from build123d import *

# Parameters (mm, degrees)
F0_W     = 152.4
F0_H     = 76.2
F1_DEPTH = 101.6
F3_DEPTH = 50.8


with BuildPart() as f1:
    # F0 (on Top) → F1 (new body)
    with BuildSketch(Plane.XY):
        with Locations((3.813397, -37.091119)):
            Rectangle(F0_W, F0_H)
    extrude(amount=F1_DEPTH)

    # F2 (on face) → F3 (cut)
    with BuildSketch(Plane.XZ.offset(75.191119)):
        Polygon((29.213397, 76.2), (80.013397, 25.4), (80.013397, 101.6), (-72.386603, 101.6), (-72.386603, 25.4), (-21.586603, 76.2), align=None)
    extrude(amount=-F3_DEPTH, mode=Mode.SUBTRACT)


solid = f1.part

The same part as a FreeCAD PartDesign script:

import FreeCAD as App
import Part
import Sketcher

V = App.Vector
Q = App.Units.Quantity

doc = App.newDocument("Part")
body = doc.addObject("PartDesign::Body", "Body")

sketch1 = body.newObject("Sketcher::SketchObject", "Sketch")
sketch1.AttachmentSupport = (doc.getObject("XY_Plane"), [""])
sketch1.MapMode = "FlatFace"
sketch1.addGeometry([
    Part.LineSegment(V(-72, 1, 0), V(-72, -75, 0)),
    Part.LineSegment(V(-72, -75, 0), V(80, -75, 0)),
    Part.LineSegment(V(80, -75, 0), V(80, 1, 0)),
    Part.LineSegment(V(80, 1, 0), V(-72, 1, 0)),
], False)
sketch1.addConstraint([
    Sketcher.Constraint("Coincident", 0, 2, 1, 1),
    Sketcher.Constraint("Coincident", 1, 2, 2, 1),
    Sketcher.Constraint("Coincident", 2, 2, 3, 1),
    Sketcher.Constraint("Coincident", 3, 2, 0, 1),
    Sketcher.Constraint("Vertical", 0),
    Sketcher.Constraint("Horizontal", 1),
    Sketcher.Constraint("Vertical", 2),
    Sketcher.Constraint("Horizontal", 3),
    Sketcher.Constraint("DistanceX", 1, 1, 1, 2, Q("6 in")),
    Sketcher.Constraint("DistanceY", 0, 2, 0, 1, Q("3 in")),
    Sketcher.Constraint("DistanceY", 0, 2, -1, 1, Q("75.191119 mm")),
    Sketcher.Constraint("DistanceX", 0, 2, -1, 1, Q("72.386603 mm")),
])
pad1 = body.newObject("PartDesign::Pad", "Pad")
pad1.Profile = sketch1
pad1.Length = Q("4 in")

sketch2 = body.newObject("Sketcher::SketchObject", "Sketch001")
sketch2.AttachmentSupport = (doc.getObject("XZ_Plane"), [""])
sketch2.MapMode = "FlatFace"
sketch2.AttachmentOffset = App.Placement(V(0, 0, 75.191119), App.Rotation())
sketch2.addGeometry([
    Part.LineSegment(V(29, 76, 0), V(80, 25, 0)),
    Part.LineSegment(V(80, 25, 0), V(80, 102, 0)),
    Part.LineSegment(V(80, 102, 0), V(-72, 102, 0)),
    Part.LineSegment(V(-72, 102, 0), V(-72, 25, 0)),
    Part.LineSegment(V(-72, 25, 0), V(-22, 76, 0)),
    Part.LineSegment(V(-22, 76, 0), V(29, 76, 0)),
], False)
sketch2.addConstraint([
    Sketcher.Constraint("Coincident", 0, 2, 1, 1),
    Sketcher.Constraint("Coincident", 1, 2, 2, 1),
    Sketcher.Constraint("Coincident", 2, 2, 3, 1),
    Sketcher.Constraint("Coincident", 3, 2, 4, 1),
    Sketcher.Constraint("Coincident", 4, 2, 5, 1),
    Sketcher.Constraint("Coincident", 5, 2, 0, 1),
    Sketcher.Constraint("Vertical", 1),
    Sketcher.Constraint("Horizontal", 2),
    Sketcher.Constraint("Vertical", 3),
    Sketcher.Constraint("Horizontal", 5),
    Sketcher.Constraint("Perpendicular", 0, 4),
    Sketcher.Constraint("Horizontal", 0, 2, 3, 2),
    Sketcher.Constraint("Equal", 0, 4),
    Sketcher.Constraint("DistanceX", 2, 2, 2, 1, Q("6 in")),
    Sketcher.Constraint("DistanceX", 5, 1, 5, 2, Q("2 in")),
    Sketcher.Constraint("DistanceY", 1, 1, 1, 2, Q("3 in")),
    Sketcher.Constraint("DistanceY", -1, 1, 0, 2, Q("1 in")),
    Sketcher.Constraint("DistanceX", -1, 1, 0, 2, Q("80.013397 mm")),
])
pocket1 = body.newObject("PartDesign::Pocket", "Pocket")
pocket1.Profile = sketch2
pocket1.Length = Q("2 in")

doc.recompute()
